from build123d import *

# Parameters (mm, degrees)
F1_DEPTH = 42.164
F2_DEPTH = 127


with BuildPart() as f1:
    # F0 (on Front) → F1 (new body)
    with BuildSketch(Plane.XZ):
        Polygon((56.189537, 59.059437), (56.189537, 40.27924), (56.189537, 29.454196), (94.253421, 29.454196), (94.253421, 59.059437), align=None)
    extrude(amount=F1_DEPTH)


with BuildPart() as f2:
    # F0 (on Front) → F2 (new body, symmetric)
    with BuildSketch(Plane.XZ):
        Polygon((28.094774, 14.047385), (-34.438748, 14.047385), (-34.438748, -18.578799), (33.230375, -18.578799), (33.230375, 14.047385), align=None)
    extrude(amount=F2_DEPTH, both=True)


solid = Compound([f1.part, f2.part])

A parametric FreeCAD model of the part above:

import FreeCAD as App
import Part
import Sketcher

V = App.Vector
Q = App.Units.Quantity

doc = App.newDocument("Part")
body = doc.addObject("PartDesign::Body", "Body")

# Sketch on XZ plane
sketch1 = body.newObject("Sketcher::SketchObject", "Sketch")
sketch1.AttachmentSupport = (doc.getObject("XZ_Plane"), [""])
sketch1.MapMode = "FlatFace"
sketch1.addGeometry([
    Part.LineSegment(V(56, 59, 0), V(56, 29, 0)),
    Part.LineSegment(V(56, 29, 0), V(94, 29, 0)),
    Part.LineSegment(V(94, 29, 0), V(94, 59, 0)),
    Part.LineSegment(V(94, 59, 0), V(56, 59, 0)),
], False)
sketch1.addConstraint([
    Sketcher.Constraint("Coincident", 0, 2, 1, 1),
    Sketcher.Constraint("Coincident", 1, 2, 2, 1),
    Sketcher.Constraint("Coincident", 2, 2, 3, 1),
    Sketcher.Constraint("Coincident", 3, 2, 0, 1),
    Sketcher.Constraint("Vertical", 0),
    Sketcher.Constraint("Horizontal", 1),
    Sketcher.Constraint("Vertical", 2),
    Sketcher.Constraint("Horizontal", 3),
    Sketcher.Constraint("DistanceY", 0, 2, 0, 1, 29.605241),
    Sketcher.Constraint("DistanceX", 1, 1, 1, 2, 38.063884),
    Sketcher.Constraint("DistanceX", -1, 1, 1, 2, 94.253421),
    Sketcher.Constraint("DistanceY", -1, 1, 0, 2, 29.454196),
])
pad1 = body.newObject("PartDesign::Pad", "Pad")
pad1.Profile = sketch1
pad1.Length = Q("1.66 in")
body2 = doc.addObject("PartDesign::Body", "Body001")

# Sketch on XZ plane
sketch2 = body2.newObject("Sketcher::SketchObject", "Sketch001")
sketch2.AttachmentSupport = (doc.getObject("XZ_Plane001"), [""])
sketch2.MapMode = "FlatFace"
sketch2.addGeometry([
    Part.LineSegment(V(-34, 14, 0), V(-34, -19, 0)),
    Part.LineSegment(V(-34, -19, 0), V(33, -19, 0)),
    Part.LineSegment(V(33, -19, 0), V(33, 14, 0)),
    Part.LineSegment(V(33, 14, 0), V(-34, 14, 0)),
], False)
sketch2.addConstraint([
    Sketcher.Constraint("Coincident", 0, 2, 1, 1),
    Sketcher.Constraint("Coincident", 1, 2, 2, 1),
    Sketcher.Constraint("Coincident", 2, 2, 3, 1),
    Sketcher.Constraint("Coincident", 3, 2, 0, 1),
    Sketcher.Constraint("Vertical", 0),
    Sketcher.Constraint("Horizontal", 1),
    Sketcher.Constraint("Vertical", 2),
    Sketcher.Constraint("Horizontal", 3),
    Sketcher.Constraint("DistanceY", 0, 2, -1, 1, 18.578799),
    Sketcher.Constraint("DistanceX", 1, 1, 1, 2, 67.669123),
    Sketcher.Constraint("DistanceY", 0, 2, 0, 1, 32.626184),
    Sketcher.Constraint("DistanceX", 0, 2, -1, 1, 34.438748),
])
pad2 = body2.newObject("PartDesign::Pad", "Pad001")
pad2.Profile = sketch2
pad2.Length = Q("10 in")
pad2.Midplane = True

doc.recompute()
